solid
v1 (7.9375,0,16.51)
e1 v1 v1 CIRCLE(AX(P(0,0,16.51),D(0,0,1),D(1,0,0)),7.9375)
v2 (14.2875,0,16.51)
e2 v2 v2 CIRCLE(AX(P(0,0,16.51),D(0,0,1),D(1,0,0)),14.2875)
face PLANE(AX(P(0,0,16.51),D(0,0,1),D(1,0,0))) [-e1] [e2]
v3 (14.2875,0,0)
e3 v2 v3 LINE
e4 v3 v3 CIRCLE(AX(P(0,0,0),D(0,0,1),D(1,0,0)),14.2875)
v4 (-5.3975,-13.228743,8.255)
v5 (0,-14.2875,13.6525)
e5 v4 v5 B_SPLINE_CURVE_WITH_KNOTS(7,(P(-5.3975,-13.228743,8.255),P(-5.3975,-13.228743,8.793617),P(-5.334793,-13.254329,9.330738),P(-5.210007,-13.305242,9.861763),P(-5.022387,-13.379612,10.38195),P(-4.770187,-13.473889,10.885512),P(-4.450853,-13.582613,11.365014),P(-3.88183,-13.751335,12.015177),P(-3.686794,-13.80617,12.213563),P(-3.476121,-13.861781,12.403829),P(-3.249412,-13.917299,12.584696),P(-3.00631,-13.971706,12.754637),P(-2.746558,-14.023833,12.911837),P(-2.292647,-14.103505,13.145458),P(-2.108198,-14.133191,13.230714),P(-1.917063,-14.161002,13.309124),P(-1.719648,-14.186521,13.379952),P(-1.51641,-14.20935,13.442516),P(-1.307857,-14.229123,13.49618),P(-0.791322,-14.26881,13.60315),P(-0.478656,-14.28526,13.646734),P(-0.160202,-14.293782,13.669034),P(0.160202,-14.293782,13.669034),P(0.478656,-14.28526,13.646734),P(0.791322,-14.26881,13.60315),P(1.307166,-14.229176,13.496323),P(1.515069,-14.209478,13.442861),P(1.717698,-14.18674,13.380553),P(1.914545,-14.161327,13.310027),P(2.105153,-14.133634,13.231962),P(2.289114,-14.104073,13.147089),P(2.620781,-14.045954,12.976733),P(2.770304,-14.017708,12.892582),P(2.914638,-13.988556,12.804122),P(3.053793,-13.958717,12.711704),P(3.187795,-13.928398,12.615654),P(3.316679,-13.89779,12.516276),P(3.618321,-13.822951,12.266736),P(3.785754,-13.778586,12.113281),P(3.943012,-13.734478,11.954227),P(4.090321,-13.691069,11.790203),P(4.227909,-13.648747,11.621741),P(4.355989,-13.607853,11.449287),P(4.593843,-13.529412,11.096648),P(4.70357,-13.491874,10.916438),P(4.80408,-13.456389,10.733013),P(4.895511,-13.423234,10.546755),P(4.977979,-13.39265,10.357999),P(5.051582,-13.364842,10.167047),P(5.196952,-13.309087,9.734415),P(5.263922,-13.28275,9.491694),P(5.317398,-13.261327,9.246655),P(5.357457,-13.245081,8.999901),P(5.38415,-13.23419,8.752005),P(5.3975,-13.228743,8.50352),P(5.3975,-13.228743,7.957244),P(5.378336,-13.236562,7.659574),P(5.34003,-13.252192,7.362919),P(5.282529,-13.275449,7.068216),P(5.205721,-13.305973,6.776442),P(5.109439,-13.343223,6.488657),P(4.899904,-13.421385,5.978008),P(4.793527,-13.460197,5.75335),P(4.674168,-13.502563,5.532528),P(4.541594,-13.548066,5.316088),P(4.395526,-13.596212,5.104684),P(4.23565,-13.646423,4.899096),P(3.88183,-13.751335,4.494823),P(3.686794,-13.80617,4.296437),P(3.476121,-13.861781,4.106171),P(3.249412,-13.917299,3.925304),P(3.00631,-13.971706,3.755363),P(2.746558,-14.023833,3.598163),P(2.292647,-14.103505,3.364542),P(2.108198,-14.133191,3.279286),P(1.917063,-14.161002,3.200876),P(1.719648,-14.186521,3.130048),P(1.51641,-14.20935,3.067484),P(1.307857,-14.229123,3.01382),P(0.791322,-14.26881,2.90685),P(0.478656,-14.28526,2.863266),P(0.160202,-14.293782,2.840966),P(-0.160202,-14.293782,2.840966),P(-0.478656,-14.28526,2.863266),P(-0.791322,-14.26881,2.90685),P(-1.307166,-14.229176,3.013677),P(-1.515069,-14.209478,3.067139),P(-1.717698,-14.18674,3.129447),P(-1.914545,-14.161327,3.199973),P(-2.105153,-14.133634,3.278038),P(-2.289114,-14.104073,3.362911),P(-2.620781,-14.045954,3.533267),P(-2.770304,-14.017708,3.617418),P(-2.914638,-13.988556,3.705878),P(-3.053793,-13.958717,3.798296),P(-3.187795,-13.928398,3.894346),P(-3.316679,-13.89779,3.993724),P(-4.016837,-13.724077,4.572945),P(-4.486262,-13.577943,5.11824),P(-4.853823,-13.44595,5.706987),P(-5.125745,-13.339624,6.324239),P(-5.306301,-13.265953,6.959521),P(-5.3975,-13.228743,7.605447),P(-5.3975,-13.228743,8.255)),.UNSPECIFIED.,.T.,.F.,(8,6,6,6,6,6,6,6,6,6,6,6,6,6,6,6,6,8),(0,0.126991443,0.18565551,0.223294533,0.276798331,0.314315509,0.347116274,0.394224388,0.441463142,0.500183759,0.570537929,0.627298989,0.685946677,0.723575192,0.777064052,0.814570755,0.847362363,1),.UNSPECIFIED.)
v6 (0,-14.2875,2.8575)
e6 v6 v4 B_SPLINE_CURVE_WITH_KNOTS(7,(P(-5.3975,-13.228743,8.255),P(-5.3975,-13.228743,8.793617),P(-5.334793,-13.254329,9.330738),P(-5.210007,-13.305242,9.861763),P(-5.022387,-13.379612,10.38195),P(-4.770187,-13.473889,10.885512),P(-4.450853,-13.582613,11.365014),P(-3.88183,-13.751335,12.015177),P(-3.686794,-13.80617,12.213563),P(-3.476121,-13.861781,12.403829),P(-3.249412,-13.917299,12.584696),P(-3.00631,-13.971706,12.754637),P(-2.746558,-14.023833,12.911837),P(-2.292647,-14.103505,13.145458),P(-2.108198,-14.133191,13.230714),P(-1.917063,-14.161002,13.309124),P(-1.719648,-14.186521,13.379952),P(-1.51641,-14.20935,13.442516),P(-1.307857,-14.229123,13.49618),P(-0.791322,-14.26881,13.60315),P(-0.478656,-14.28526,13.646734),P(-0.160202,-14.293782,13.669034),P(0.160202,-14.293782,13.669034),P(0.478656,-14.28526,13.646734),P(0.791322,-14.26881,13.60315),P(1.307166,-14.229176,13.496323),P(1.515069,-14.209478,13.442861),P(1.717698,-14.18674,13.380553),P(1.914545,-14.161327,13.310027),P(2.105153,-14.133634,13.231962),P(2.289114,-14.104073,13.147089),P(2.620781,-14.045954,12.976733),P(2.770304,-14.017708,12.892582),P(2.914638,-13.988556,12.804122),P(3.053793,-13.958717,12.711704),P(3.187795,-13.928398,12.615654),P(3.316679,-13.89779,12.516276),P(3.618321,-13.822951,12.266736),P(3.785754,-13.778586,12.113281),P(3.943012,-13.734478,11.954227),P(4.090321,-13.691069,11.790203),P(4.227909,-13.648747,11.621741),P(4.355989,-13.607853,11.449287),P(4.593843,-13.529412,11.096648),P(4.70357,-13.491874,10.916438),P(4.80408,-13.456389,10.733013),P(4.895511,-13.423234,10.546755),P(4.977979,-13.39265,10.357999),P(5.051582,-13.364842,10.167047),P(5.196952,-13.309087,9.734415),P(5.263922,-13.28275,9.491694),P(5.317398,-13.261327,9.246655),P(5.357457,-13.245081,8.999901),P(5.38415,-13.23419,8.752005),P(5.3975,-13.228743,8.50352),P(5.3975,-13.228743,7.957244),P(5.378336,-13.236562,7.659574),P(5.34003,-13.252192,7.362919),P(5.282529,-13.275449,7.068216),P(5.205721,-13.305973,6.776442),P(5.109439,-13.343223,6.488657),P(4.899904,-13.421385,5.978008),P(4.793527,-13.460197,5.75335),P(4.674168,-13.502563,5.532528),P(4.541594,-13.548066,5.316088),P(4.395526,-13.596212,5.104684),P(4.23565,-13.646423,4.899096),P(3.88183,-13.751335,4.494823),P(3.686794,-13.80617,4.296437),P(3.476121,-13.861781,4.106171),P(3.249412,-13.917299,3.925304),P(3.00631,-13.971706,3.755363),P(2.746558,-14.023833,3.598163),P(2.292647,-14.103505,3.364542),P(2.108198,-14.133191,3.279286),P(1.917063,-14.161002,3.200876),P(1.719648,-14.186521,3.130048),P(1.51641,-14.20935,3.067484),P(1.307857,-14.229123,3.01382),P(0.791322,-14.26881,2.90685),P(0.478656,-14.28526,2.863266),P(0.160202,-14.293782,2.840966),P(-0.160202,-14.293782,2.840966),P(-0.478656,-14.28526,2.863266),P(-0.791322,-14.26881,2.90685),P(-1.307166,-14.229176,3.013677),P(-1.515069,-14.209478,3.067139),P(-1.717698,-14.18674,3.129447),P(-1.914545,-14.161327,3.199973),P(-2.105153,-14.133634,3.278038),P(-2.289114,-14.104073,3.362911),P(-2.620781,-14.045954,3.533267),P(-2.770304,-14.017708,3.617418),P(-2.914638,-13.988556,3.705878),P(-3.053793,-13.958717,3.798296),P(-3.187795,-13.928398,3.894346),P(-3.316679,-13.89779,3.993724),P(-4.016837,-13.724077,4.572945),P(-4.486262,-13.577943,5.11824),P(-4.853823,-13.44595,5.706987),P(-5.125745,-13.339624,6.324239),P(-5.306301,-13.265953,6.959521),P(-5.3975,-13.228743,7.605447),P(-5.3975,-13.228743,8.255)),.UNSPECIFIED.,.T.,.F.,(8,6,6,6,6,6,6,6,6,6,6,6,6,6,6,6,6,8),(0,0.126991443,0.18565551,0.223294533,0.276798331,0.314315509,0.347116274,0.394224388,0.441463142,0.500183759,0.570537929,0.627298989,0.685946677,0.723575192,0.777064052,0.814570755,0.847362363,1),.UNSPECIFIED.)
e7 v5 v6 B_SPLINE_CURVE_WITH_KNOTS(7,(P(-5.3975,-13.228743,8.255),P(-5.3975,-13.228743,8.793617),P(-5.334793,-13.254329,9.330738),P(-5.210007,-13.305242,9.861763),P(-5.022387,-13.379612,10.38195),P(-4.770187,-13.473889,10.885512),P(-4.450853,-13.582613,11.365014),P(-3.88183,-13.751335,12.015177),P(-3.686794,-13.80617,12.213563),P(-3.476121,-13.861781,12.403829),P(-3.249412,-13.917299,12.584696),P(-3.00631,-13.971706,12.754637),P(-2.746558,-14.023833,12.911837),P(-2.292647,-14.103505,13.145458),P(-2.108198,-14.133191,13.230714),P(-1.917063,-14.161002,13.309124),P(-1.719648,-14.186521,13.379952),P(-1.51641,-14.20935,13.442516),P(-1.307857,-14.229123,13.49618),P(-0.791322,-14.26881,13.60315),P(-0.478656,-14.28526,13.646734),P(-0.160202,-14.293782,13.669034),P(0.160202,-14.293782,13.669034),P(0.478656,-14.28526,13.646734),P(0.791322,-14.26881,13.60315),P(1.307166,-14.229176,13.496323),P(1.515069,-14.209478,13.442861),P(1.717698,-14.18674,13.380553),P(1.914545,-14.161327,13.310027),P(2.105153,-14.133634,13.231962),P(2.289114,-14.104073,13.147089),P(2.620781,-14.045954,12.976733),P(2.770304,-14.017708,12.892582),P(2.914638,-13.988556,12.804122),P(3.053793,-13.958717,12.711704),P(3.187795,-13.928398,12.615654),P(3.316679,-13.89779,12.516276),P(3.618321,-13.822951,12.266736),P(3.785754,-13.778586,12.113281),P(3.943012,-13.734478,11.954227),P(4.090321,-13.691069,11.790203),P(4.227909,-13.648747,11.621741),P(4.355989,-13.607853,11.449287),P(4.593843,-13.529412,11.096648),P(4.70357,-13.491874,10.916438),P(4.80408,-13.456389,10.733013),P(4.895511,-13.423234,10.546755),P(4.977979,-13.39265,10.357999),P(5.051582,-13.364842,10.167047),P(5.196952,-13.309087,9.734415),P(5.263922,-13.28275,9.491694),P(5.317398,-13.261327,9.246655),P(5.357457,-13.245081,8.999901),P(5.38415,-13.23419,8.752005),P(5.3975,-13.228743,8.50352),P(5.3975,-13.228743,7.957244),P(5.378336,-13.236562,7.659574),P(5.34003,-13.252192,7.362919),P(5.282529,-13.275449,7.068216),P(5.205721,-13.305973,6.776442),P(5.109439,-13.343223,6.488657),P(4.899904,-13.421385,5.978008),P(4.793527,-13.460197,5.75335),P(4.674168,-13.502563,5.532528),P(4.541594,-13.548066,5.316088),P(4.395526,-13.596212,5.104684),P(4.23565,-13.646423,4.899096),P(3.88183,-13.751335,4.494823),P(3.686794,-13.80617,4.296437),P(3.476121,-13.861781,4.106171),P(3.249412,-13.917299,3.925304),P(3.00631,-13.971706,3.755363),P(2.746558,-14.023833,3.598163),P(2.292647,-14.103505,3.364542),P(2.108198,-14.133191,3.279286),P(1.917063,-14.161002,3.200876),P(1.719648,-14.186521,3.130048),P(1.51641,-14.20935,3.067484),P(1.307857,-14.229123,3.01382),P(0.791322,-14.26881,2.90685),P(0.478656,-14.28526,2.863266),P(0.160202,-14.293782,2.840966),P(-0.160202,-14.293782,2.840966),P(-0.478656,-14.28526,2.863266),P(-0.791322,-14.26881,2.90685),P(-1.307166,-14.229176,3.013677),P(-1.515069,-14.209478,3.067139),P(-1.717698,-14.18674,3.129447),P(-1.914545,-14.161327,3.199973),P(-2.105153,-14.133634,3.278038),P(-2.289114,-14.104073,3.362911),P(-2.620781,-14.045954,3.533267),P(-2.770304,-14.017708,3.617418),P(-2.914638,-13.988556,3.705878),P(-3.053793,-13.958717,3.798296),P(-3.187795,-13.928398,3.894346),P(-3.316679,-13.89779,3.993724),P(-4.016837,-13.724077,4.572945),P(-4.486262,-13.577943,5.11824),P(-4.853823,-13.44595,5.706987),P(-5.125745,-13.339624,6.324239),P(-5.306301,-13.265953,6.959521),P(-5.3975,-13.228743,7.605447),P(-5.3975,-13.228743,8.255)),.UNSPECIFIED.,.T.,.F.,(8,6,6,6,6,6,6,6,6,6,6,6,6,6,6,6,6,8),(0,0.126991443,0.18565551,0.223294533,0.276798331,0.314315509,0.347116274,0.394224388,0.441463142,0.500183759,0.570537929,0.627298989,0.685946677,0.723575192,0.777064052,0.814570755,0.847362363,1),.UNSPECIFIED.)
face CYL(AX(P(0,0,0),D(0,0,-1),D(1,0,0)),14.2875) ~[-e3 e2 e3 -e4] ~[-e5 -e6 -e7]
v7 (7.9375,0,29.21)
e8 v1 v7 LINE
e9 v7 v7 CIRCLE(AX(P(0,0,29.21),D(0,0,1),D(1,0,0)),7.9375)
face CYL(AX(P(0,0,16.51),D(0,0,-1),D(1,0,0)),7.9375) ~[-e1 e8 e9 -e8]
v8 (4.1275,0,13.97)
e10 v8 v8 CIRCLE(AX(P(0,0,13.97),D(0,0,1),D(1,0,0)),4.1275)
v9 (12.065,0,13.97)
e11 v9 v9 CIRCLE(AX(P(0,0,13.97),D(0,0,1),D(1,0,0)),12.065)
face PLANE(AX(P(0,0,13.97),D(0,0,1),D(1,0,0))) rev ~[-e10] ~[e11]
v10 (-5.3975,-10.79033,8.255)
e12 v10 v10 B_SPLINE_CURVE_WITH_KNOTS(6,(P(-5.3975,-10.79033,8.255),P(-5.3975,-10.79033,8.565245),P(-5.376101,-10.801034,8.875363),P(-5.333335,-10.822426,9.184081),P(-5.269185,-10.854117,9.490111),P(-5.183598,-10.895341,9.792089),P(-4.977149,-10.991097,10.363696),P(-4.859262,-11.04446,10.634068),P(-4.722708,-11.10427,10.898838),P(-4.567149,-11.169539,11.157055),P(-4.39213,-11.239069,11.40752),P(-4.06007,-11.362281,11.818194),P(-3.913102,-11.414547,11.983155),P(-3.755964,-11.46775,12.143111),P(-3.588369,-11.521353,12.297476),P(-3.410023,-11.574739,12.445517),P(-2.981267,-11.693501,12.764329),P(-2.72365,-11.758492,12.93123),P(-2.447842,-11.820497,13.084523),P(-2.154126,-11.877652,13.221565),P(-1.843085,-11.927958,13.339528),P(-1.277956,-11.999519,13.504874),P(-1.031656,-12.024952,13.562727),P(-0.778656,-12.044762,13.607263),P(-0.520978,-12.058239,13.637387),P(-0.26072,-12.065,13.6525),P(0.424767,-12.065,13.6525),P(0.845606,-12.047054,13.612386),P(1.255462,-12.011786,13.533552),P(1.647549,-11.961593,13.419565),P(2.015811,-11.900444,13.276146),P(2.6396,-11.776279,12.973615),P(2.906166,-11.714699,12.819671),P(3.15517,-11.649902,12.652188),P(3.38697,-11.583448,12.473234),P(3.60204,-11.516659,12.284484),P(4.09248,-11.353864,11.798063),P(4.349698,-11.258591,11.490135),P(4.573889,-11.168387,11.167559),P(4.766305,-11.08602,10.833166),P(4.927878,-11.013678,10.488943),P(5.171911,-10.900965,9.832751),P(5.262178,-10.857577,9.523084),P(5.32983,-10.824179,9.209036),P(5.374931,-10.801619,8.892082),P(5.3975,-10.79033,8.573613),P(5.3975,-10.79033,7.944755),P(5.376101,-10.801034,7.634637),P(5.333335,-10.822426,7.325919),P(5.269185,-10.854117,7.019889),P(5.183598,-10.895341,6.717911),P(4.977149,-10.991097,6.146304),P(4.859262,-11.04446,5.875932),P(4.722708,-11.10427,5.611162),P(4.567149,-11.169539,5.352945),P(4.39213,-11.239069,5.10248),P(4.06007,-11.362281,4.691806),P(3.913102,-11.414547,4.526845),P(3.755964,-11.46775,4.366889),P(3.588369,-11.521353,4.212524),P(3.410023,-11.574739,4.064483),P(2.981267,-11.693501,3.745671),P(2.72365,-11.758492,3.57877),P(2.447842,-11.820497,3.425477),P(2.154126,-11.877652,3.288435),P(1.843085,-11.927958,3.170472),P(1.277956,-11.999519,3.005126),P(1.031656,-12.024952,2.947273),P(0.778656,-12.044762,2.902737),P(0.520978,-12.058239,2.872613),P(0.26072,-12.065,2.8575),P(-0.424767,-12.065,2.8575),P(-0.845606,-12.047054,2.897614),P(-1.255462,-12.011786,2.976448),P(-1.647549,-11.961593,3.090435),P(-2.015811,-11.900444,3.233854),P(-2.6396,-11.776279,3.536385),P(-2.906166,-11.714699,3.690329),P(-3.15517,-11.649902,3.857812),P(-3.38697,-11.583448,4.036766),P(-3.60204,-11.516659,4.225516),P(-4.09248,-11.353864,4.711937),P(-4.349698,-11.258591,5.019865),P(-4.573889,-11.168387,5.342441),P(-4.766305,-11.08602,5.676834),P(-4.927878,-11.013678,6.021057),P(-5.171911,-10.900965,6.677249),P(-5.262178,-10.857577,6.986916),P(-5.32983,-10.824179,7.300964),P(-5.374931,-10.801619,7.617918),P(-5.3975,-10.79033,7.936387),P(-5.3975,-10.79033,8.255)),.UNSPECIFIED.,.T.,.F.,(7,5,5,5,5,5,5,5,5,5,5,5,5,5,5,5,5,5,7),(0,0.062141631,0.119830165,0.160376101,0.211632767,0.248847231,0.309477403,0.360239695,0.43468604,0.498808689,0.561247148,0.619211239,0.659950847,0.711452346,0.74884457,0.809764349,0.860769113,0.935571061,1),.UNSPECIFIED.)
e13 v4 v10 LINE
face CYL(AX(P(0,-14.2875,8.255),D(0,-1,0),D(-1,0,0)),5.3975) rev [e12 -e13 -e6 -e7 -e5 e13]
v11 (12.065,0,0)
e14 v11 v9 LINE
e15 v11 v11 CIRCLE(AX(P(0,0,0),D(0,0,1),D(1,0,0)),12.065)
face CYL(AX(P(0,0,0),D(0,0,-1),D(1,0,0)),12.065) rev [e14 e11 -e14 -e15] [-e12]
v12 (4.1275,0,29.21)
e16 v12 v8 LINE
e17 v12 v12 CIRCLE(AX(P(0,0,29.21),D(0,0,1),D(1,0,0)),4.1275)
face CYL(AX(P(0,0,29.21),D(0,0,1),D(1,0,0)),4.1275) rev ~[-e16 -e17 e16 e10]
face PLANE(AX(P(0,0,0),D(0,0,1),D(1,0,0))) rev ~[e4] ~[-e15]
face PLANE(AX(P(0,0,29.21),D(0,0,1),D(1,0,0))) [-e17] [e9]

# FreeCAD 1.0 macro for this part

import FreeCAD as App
import Part
import Sketcher
from FreeCAD import Vector
Q = App.Units.Quantity

doc = App.newDocument("Part")
params = doc.addObject("Spreadsheet::Sheet", "Params")
for row, (alias, value) in enumerate([
    ("sketch1_diameter", "0.95 in"),
    ("sketch1_diameter2", "1.125 in"),
    ("pad1_length", "0.55 in"),
    ("sketch2_diameter", "1.125 in"),
    ("pad2_length", "0.1 in"),
    ("sketch3_diameter", "0.625 in"),
    ("pad3_length", "0.5 in"),
    ("sketch4_diameter", "0.425 in"),
    ("pocket1_length", "0.5 in"),
    ("sketch5_diameter", "0.325 in"),
], start=1):
    params.set(f"A{row}", alias)
    params.set(f"B{row}", "=" + value)
    params.setAlias(f"B{row}", alias)

body = doc.addObject("PartDesign::Body", "Body")

# Sketch on XY plane
sketch1 = body.newObject("Sketcher::SketchObject", "Sketch")
sketch1.AttachmentSupport = (doc.getObject("XY_Plane"), [""])
sketch1.MapMode = "FlatFace"
sketch1.addGeometry(Part.Circle(Vector(0, 0, 0), Vector(0, 0, 1), 14.2875), False)
sketch1.addGeometry(Part.Circle(Vector(0, 0, 0), Vector(0, 0, 1), 12.065), False)
sketch1.addConstraint(Sketcher.Constraint("Coincident", 0, 3, -1, 1))
sketch1.addConstraint(Sketcher.Constraint("Coincident", 1, 3, -1, 1))
sketch1.addConstraint(Sketcher.Constraint("Diameter", 1, Q("0.95 in")))
sketch1.addConstraint(Sketcher.Constraint("Diameter", 0, Q("1.125 in")))
sketch1.setExpression("Constraints[2]", "Params.sketch1_diameter")
sketch1.setExpression("Constraints[3]", "Params.sketch1_diameter2")
pad1 = body.newObject("PartDesign::Pad", "Pad")
pad1.Profile = sketch1
pad1.setExpression("Length", "Params.pad1_length")

# Sketch on XY plane
sketch2 = body.newObject("Sketcher::SketchObject", "Sketch001")
sketch2.AttachmentSupport = (doc.getObject("XY_Plane"), [""])
sketch2.MapMode = "FlatFace"
sketch2.AttachmentOffset = App.Placement(Vector(0, 0, 0.55 * 25.4), App.Rotation())
sketch2.addGeometry(Part.Circle(Vector(0, 0, 0), Vector(0, 0, 1), 14.2875), False)
sketch2.addConstraint(Sketcher.Constraint("Coincident", 0, 3, -1, 1))
sketch2.addConstraint(Sketcher.Constraint("Diameter", 0, Q("1.125 in")))
sketch2.setExpression("Constraints[1]", "Params.sketch2_diameter")
pad2 = body.newObject("PartDesign::Pad", "Pad001")
pad2.Profile = sketch2
pad2.setExpression("Length", "Params.pad2_length")

# Sketch on XY plane
sketch3 = body.newObject("Sketcher::SketchObject", "Sketch002")
sketch3.AttachmentSupport = (doc.getObject("XY_Plane"), [""])
sketch3.MapMode = "FlatFace"
sketch3.AttachmentOffset = App.Placement(Vector(0, 0, 0.65 * 25.4), App.Rotation())
sketch3.addGeometry(Part.Circle(Vector(0, 0, 0), Vector(0, 0, 1), 7.9375), False)
sketch3.addConstraint(Sketcher.Constraint("Coincident", 0, 3, -1, 1))
sketch3.addConstraint(Sketcher.Constraint("Diameter", 0, Q("0.625 in")))
sketch3.setExpression("Constraints[1]", "Params.sketch3_diameter")
pad3 = body.newObject("PartDesign::Pad", "Pad002")
pad3.Profile = sketch3
pad3.setExpression("Length", "Params.pad3_length")

# Sketch on XZ plane
sketch4 = body.newObject("Sketcher::SketchObject", "Sketch003")
sketch4.AttachmentSupport = (doc.getObject("XZ_Plane"), [""])
sketch4.MapMode = "FlatFace"
sketch4.AttachmentOffset = App.Placement(Vector(0, 0, 0.5625 * 25.4), App.Rotation())
sketch4.addGeometry(Part.Circle(Vector(0, 8.255, 0), Vector(0, 0, 1), 5.3975), False)
sketch4.addConstraint(Sketcher.Constraint("PointOnObject", 0, 3, -2))
sketch4.addConstraint(Sketcher.Constraint("Diameter", 0, Q("0.425 in")))
sketch4.addConstraint(Sketcher.Constraint("DistanceY", -1, 1, 0, 3, Q("0.325 in")))
sketch4.setExpression("Constraints[1]", "Params.sketch4_diameter")
pocket1 = body.newObject("PartDesign::Pocket", "Pocket")
pocket1.Profile = sketch4
pocket1.setExpression("Length", "Params.pocket1_length")

# Sketch on XY plane
sketch5 = body.newObject("Sketcher::SketchObject", "Sketch004")
sketch5.AttachmentSupport = (doc.getObject("XY_Plane"), [""])
sketch5.MapMode = "FlatFace"
sketch5.AttachmentOffset = App.Placement(Vector(0, 0, 1.15 * 25.4), App.Rotation())
sketch5.addGeometry(Part.Circle(Vector(0, 0, 0), Vector(0, 0, 1), 4.1275), False)
sketch5.addConstraint(Sketcher.Constraint("Coincident", 0, 3, -1, 1))
sketch5.addConstraint(Sketcher.Constraint("Diameter", 0, Q("0.325 in")))
sketch5.setExpression("Constraints[1]", "Params.sketch5_diameter")
pocket2 = body.newObject("PartDesign::Pocket", "Pocket001")
pocket2.Profile = sketch5
pocket2.Type = "ThroughAll"

doc.recompute()
